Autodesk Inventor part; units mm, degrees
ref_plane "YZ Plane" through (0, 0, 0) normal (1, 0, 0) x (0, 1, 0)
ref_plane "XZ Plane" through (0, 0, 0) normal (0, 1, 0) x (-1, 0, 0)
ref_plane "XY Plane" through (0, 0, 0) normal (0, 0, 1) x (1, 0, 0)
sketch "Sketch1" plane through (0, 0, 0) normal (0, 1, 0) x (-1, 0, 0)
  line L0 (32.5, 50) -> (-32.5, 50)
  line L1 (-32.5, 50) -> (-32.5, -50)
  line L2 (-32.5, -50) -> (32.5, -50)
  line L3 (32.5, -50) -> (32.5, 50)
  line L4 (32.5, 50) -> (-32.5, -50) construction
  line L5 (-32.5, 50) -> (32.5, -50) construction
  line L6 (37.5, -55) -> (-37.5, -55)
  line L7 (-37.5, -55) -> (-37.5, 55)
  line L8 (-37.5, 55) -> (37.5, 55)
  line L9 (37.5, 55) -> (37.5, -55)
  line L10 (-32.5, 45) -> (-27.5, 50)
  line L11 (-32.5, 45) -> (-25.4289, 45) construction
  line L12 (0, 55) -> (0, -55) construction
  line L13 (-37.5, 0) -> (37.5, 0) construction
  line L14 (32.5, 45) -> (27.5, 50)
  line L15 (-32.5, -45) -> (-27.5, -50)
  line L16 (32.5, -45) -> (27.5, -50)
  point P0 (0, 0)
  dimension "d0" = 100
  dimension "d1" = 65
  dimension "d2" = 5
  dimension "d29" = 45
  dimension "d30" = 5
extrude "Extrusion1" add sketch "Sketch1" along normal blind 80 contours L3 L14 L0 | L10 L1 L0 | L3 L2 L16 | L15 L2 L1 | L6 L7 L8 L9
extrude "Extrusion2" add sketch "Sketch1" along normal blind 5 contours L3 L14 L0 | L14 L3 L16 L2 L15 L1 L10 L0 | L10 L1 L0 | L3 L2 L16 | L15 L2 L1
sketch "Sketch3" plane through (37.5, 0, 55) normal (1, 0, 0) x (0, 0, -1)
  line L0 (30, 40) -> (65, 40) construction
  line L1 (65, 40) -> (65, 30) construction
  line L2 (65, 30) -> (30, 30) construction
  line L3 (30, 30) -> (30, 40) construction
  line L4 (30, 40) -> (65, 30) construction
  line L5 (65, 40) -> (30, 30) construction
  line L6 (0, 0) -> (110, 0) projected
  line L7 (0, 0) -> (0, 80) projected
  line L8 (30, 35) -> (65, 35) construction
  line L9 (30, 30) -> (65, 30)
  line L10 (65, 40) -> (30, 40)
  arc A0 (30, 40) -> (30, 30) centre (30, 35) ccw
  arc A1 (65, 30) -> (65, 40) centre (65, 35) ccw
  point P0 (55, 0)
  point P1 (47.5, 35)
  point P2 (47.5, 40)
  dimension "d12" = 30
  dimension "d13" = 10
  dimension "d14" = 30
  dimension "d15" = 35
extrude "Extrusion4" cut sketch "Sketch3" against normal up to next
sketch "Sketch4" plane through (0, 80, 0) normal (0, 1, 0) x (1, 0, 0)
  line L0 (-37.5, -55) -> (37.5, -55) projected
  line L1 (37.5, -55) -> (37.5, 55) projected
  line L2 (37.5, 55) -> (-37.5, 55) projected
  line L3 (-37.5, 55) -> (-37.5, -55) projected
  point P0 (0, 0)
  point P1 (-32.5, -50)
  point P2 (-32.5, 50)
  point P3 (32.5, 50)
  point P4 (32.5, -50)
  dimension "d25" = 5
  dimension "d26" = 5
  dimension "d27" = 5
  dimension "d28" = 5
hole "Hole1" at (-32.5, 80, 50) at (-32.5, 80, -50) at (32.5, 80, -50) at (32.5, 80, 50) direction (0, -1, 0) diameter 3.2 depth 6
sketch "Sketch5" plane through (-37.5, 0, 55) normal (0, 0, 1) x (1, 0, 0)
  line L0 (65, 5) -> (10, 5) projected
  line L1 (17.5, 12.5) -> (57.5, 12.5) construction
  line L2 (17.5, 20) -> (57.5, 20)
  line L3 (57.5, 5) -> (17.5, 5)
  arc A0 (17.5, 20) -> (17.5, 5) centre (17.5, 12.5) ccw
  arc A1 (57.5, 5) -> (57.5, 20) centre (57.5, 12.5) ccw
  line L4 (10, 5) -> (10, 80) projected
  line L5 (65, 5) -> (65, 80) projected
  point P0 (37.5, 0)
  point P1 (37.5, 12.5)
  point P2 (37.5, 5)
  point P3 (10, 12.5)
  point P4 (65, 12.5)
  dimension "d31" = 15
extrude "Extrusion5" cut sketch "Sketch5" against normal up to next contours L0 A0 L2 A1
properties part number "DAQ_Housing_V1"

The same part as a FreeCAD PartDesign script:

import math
import FreeCAD as App
import Part
import Sketcher

V = App.Vector

doc = App.newDocument("Part")
body = doc.addObject("PartDesign::Body", "Body")

# Sketch on XZ plane
sketch1 = body.newObject("Sketcher::SketchObject", "Sketch")
sketch1.AttachmentSupport = (doc.getObject("XZ_Plane"), [""])
sketch1.MapMode = "FlatFace"
sketch1.addGeometry(Part.LineSegment(V(38, -55, 0), V(-38, -55, 0)), False)
sketch1.addGeometry(Part.LineSegment(V(-38, -55, 0), V(-38, 55, 0)), False)
sketch1.addGeometry(Part.LineSegment(V(-38, 55, 0), V(38, 55, 0)), False)
sketch1.addGeometry(Part.LineSegment(V(38, 55, 0), V(38, -55, 0)), False)
sketch1.addGeometry(Part.LineSegment(V(-28, 50, 0), V(-32, 45, 0)), False)
sketch1.addGeometry(Part.LineSegment(V(-32, 45, 0), V(-32, -45, 0)), False)
sketch1.addGeometry(Part.LineSegment(V(-32, -45, 0), V(-28, -50, 0)), False)
sketch1.addGeometry(Part.LineSegment(V(-28, -50, 0), V(28, -50, 0)), False)
sketch1.addGeometry(Part.LineSegment(V(28, -50, 0), V(32, -45, 0)), False)
sketch1.addGeometry(Part.LineSegment(V(32, -45, 0), V(32, 45, 0)), False)
sketch1.addGeometry(Part.LineSegment(V(32, 45, 0), V(28, 50, 0)), False)
sketch1.addGeometry(Part.LineSegment(V(28, 50, 0), V(-28, 50, 0)), False)
sketch1.addConstraint(Sketcher.Constraint("Coincident", 0, 2, 1, 1))
sketch1.addConstraint(Sketcher.Constraint("Coincident", 1, 2, 2, 1))
sketch1.addConstraint(Sketcher.Constraint("Coincident", 2, 2, 3, 1))
sketch1.addConstraint(Sketcher.Constraint("Coincident", 3, 2, 0, 1))
sketch1.addConstraint(Sketcher.Constraint("Coincident", 4, 2, 5, 1))
sketch1.addConstraint(Sketcher.Constraint("Coincident", 5, 2, 6, 1))
sketch1.addConstraint(Sketcher.Constraint("Coincident", 6, 2, 7, 1))
sketch1.addConstraint(Sketcher.Constraint("Coincident", 7, 2, 8, 1))
sketch1.addConstraint(Sketcher.Constraint("Coincident", 8, 2, 9, 1))
sketch1.addConstraint(Sketcher.Constraint("Coincident", 9, 2, 10, 1))
sketch1.addConstraint(Sketcher.Constraint("Coincident", 10, 2, 11, 1))
sketch1.addConstraint(Sketcher.Constraint("Coincident", 11, 2, 4, 1))
sketch1.addConstraint(Sketcher.Constraint("Horizontal", 0))
sketch1.addConstraint(Sketcher.Constraint("Vertical", 1))
sketch1.addConstraint(Sketcher.Constraint("Horizontal", 2))
sketch1.addConstraint(Sketcher.Constraint("Vertical", 3))
sketch1.addConstraint(Sketcher.Constraint("Vertical", 5))
sketch1.addConstraint(Sketcher.Constraint("Horizontal", 7))
sketch1.addConstraint(Sketcher.Constraint("Vertical", 9))
sketch1.addConstraint(Sketcher.Constraint("Horizontal", 11))
sketch1.addConstraint(Sketcher.Constraint("Symmetric", 0, 2, 2, 2, -1, 1))
sketch1.addConstraint(Sketcher.Constraint("Symmetric", 4, 2, 8, 2, -1, 1))
sketch1.addConstraint(Sketcher.Constraint("Symmetric", 6, 2, 10, 2, -1, 1))
sketch1.addConstraint(Sketcher.Constraint("Perpendicular", 4, 6))
sketch1.addConstraint(Sketcher.Constraint("Perpendicular", 6, 8))
sketch1.addConstraint(Sketcher.Constraint("Perpendicular", 8, 10))
sketch1.addConstraint(Sketcher.Constraint("Horizontal", 5, 2, 8, 2))
sketch1.addConstraint(Sketcher.Constraint("Vertical", 7, 2, 10, 2))
sketch1.addConstraint(Sketcher.Constraint("DistanceY", -1, 1, 4, 2, 45.0))
sketch1.addConstraint(Sketcher.Constraint("DistanceX", 1, 2, 4, 2, 5.0))
sketch1.addConstraint(Sketcher.Constraint("DistanceY", 0, 2, 4, 2, 100.0))
sketch1.addConstraint(Sketcher.Constraint("DistanceX", 5, 2, 6, 2, 5.0))
sketch1.addConstraint(Sketcher.Constraint("DistanceX", 6, 2, 3, 2, 65.0))
pad1 = body.newObject("PartDesign::Pad", "Pad")
pad1.Profile = sketch1
pad1.Length = 80
pad1.Reversed = True

# Sketch on XZ plane
sketch2 = body.newObject("Sketcher::SketchObject", "Sketch001")
sketch2.AttachmentSupport = (doc.getObject("XZ_Plane"), [""])
sketch2.MapMode = "FlatFace"
sketch2.addGeometry(Part.LineSegment(V(-32, 50, 0), V(32, 50, 0)), False)
sketch2.addGeometry(Part.LineSegment(V(32, 50, 0), V(32, -50, 0)), False)
sketch2.addGeometry(Part.LineSegment(V(32, -50, 0), V(-32, -50, 0)), False)
sketch2.addGeometry(Part.LineSegment(V(-32, -50, 0), V(-32, 50, 0)), False)
sketch2.addConstraint(Sketcher.Constraint("Coincident", 0, 2, 1, 1))
sketch2.addConstraint(Sketcher.Constraint("Coincident", 1, 2, 2, 1))
sketch2.addConstraint(Sketcher.Constraint("Coincident", 2, 2, 3, 1))
sketch2.addConstraint(Sketcher.Constraint("Coincident", 3, 2, 0, 1))
sketch2.addConstraint(Sketcher.Constraint("Horizontal", 0))
sketch2.addConstraint(Sketcher.Constraint("Vertical", 1))
sketch2.addConstraint(Sketcher.Constraint("Horizontal", 2))
sketch2.addConstraint(Sketcher.Constraint("Vertical", 3))
sketch2.addConstraint(Sketcher.Constraint("Symmetric", 0, 2, 2, 2, -1, 1))
sketch2.addConstraint(Sketcher.Constraint("DistanceX", 0, 1, 0, 2, 65.0))
sketch2.addConstraint(Sketcher.Constraint("DistanceY", 1, 2, 1, 1, 100.0))
pad2 = body.newObject("PartDesign::Pad", "Pad001")
pad2.Profile = sketch2
pad2.Length = 5
pad2.Reversed = True

# Sketch on YZ plane
sketch3 = body.newObject("Sketcher::SketchObject", "Sketch002")
sketch3.AttachmentSupport = (doc.getObject("YZ_Plane"), [""])
sketch3.MapMode = "FlatFace"
sketch3.AttachmentOffset = App.Placement(V(0, 0, 37.5), App.Rotation())
sketch3.addGeometry(Part.ArcOfCircle(Part.Circle(V(35, 25, 0), V(0, 0, 1), 5), math.radians(0), math.radians(180)), False)
sketch3.addGeometry(Part.LineSegment(V(30, 25, 0), V(30, -10, 0)), False)
sketch3.addGeometry(Part.ArcOfCircle(Part.Circle(V(35, -10, 0), V(0, 0, 1), 5), math.radians(180), math.radians(360)), False)
sketch3.addGeometry(Part.LineSegment(V(40, -10, 0), V(40, 25, 0)), False)
sketch3.addConstraint(Sketcher.Constraint("Tangent", 0, 2, 1, 1))
sketch3.addConstraint(Sketcher.Constraint("Tangent", 1, 2, 2, 1))
sketch3.addConstraint(Sketcher.Constraint("Tangent", 2, 2, 3, 1))
sketch3.addConstraint(Sketcher.Constraint("Tangent", 3, 2, 0, 1))
sketch3.addConstraint(Sketcher.Constraint("Vertical", 1))
sketch3.addConstraint(Sketcher.Constraint("Vertical", 3))
sketch3.addConstraint(Sketcher.Constraint("Radius", 0, 5.0))
sketch3.addConstraint(Sketcher.Constraint("DistanceY", 1, 2, 1, 1, 35.0))
sketch3.addConstraint(Sketcher.Constraint("DistanceX", -1, 1, 0, 3, 35.0))
sketch3.addConstraint(Sketcher.Constraint("DistanceY", 2, 3, -1, 1, 10.0))
pocket1 = body.newObject("PartDesign::Pocket", "Pocket")
pocket1.Profile = sketch3
pocket1.Type = "UpToFirst"

# Sketch on XZ plane
sketch4 = body.newObject("Sketcher::SketchObject", "Sketch003")
sketch4.AttachmentSupport = (doc.getObject("XZ_Plane"), [""])
sketch4.MapMode = "FlatFace"
sketch4.AttachmentOffset = App.Placement(V(0, 0, -80), App.Rotation())
sketch4.addGeometry(Part.Circle(V(-32.5, 50, 0), V(0, 0, 1), 1.6), False)
sketch4.addGeometry(Part.Circle(V(-32.5, -50, 0), V(0, 0, 1), 1.6), False)
sketch4.addGeometry(Part.Circle(V(32.5, -50, 0), V(0, 0, 1), 1.6), False)
sketch4.addGeometry(Part.Circle(V(32.5, 50, 0), V(0, 0, 1), 1.6), False)
sketch4.addConstraint(Sketcher.Constraint("Equal", 0, 1))
sketch4.addConstraint(Sketcher.Constraint("Equal", 1, 2))
sketch4.addConstraint(Sketcher.Constraint("Equal", 2, 3))
sketch4.addConstraint(Sketcher.Constraint("Symmetric", 0, 3, 2, 3, -1, 1))
sketch4.addConstraint(Sketcher.Constraint("Symmetric", 1, 3, 3, 3, -1, 1))
sketch4.addConstraint(Sketcher.Constraint("Symmetric", 1, 3, 2, 3, -2))
sketch4.addConstraint(Sketcher.Constraint("Diameter", 0, 3.2))
sketch4.addConstraint(Sketcher.Constraint("DistanceY", -1, 1, 0, 3, 50.0))
sketch4.addConstraint(Sketcher.Constraint("DistanceX", 1, 3, 2, 3, 65.0))
doc.recompute()
hole = body.newObject("PartDesign::Hole", "Hole")
hole.Profile = sketch4
hole.ThreadType = "None"
hole.Diameter = 3.2
hole.DepthType = "Dimension"
hole.Depth = 6
hole.DrillPoint = "Flat"
hole.Reversed = True

# Sketch on XY plane
sketch5 = body.newObject("Sketcher::SketchObject", "Sketch004")
sketch5.AttachmentSupport = (doc.getObject("XY_Plane"), [""])
sketch5.MapMode = "FlatFace"
sketch5.AttachmentOffset = App.Placement(V(0, 0, 55), App.Rotation())
sketch5.addGeometry(Part.LineSegment(V(-20, 5, 0), V(20, 5, 0)), False)
sketch5.addGeometry(Part.ArcOfCircle(Part.Circle(V(20, 12, 0), V(0, 0, 1), 8), math.radians(-90), math.radians(90)), False)
sketch5.addGeometry(Part.LineSegment(V(20, 20, 0), V(-20, 20, 0)), False)
sketch5.addGeometry(Part.ArcOfCircle(Part.Circle(V(-20, 12, 0), V(0, 0, 1), 8), math.radians(90), math.radians(270)), False)
sketch5.addConstraint(Sketcher.Constraint("Tangent", 0, 2, 1, 1))
sketch5.addConstraint(Sketcher.Constraint("Tangent", 1, 2, 2, 1))
sketch5.addConstraint(Sketcher.Constraint("Tangent", 2, 2, 3, 1))
sketch5.addConstraint(Sketcher.Constraint("Tangent", 3, 2, 0, 1))
sketch5.addConstraint(Sketcher.Constraint("Horizontal", 0))
sketch5.addConstraint(Sketcher.Constraint("Horizontal", 2))
sketch5.addConstraint(Sketcher.Constraint("Radius", 1, 7.5))
sketch5.addConstraint(Sketcher.Constraint("DistanceX", 0, 1, 0, 2, 40.0))
sketch5.addConstraint(Sketcher.Constraint("DistanceX", -1, 1, 1, 3, 20.0))
sketch5.addConstraint(Sketcher.Constraint("DistanceY", -1, 1, 0, 2, 5.0))
pocket2 = body.newObject("PartDesign::Pocket", "Pocket001")
pocket2.Profile = sketch5
pocket2.Type = "UpToFirst"

doc.recompute()
